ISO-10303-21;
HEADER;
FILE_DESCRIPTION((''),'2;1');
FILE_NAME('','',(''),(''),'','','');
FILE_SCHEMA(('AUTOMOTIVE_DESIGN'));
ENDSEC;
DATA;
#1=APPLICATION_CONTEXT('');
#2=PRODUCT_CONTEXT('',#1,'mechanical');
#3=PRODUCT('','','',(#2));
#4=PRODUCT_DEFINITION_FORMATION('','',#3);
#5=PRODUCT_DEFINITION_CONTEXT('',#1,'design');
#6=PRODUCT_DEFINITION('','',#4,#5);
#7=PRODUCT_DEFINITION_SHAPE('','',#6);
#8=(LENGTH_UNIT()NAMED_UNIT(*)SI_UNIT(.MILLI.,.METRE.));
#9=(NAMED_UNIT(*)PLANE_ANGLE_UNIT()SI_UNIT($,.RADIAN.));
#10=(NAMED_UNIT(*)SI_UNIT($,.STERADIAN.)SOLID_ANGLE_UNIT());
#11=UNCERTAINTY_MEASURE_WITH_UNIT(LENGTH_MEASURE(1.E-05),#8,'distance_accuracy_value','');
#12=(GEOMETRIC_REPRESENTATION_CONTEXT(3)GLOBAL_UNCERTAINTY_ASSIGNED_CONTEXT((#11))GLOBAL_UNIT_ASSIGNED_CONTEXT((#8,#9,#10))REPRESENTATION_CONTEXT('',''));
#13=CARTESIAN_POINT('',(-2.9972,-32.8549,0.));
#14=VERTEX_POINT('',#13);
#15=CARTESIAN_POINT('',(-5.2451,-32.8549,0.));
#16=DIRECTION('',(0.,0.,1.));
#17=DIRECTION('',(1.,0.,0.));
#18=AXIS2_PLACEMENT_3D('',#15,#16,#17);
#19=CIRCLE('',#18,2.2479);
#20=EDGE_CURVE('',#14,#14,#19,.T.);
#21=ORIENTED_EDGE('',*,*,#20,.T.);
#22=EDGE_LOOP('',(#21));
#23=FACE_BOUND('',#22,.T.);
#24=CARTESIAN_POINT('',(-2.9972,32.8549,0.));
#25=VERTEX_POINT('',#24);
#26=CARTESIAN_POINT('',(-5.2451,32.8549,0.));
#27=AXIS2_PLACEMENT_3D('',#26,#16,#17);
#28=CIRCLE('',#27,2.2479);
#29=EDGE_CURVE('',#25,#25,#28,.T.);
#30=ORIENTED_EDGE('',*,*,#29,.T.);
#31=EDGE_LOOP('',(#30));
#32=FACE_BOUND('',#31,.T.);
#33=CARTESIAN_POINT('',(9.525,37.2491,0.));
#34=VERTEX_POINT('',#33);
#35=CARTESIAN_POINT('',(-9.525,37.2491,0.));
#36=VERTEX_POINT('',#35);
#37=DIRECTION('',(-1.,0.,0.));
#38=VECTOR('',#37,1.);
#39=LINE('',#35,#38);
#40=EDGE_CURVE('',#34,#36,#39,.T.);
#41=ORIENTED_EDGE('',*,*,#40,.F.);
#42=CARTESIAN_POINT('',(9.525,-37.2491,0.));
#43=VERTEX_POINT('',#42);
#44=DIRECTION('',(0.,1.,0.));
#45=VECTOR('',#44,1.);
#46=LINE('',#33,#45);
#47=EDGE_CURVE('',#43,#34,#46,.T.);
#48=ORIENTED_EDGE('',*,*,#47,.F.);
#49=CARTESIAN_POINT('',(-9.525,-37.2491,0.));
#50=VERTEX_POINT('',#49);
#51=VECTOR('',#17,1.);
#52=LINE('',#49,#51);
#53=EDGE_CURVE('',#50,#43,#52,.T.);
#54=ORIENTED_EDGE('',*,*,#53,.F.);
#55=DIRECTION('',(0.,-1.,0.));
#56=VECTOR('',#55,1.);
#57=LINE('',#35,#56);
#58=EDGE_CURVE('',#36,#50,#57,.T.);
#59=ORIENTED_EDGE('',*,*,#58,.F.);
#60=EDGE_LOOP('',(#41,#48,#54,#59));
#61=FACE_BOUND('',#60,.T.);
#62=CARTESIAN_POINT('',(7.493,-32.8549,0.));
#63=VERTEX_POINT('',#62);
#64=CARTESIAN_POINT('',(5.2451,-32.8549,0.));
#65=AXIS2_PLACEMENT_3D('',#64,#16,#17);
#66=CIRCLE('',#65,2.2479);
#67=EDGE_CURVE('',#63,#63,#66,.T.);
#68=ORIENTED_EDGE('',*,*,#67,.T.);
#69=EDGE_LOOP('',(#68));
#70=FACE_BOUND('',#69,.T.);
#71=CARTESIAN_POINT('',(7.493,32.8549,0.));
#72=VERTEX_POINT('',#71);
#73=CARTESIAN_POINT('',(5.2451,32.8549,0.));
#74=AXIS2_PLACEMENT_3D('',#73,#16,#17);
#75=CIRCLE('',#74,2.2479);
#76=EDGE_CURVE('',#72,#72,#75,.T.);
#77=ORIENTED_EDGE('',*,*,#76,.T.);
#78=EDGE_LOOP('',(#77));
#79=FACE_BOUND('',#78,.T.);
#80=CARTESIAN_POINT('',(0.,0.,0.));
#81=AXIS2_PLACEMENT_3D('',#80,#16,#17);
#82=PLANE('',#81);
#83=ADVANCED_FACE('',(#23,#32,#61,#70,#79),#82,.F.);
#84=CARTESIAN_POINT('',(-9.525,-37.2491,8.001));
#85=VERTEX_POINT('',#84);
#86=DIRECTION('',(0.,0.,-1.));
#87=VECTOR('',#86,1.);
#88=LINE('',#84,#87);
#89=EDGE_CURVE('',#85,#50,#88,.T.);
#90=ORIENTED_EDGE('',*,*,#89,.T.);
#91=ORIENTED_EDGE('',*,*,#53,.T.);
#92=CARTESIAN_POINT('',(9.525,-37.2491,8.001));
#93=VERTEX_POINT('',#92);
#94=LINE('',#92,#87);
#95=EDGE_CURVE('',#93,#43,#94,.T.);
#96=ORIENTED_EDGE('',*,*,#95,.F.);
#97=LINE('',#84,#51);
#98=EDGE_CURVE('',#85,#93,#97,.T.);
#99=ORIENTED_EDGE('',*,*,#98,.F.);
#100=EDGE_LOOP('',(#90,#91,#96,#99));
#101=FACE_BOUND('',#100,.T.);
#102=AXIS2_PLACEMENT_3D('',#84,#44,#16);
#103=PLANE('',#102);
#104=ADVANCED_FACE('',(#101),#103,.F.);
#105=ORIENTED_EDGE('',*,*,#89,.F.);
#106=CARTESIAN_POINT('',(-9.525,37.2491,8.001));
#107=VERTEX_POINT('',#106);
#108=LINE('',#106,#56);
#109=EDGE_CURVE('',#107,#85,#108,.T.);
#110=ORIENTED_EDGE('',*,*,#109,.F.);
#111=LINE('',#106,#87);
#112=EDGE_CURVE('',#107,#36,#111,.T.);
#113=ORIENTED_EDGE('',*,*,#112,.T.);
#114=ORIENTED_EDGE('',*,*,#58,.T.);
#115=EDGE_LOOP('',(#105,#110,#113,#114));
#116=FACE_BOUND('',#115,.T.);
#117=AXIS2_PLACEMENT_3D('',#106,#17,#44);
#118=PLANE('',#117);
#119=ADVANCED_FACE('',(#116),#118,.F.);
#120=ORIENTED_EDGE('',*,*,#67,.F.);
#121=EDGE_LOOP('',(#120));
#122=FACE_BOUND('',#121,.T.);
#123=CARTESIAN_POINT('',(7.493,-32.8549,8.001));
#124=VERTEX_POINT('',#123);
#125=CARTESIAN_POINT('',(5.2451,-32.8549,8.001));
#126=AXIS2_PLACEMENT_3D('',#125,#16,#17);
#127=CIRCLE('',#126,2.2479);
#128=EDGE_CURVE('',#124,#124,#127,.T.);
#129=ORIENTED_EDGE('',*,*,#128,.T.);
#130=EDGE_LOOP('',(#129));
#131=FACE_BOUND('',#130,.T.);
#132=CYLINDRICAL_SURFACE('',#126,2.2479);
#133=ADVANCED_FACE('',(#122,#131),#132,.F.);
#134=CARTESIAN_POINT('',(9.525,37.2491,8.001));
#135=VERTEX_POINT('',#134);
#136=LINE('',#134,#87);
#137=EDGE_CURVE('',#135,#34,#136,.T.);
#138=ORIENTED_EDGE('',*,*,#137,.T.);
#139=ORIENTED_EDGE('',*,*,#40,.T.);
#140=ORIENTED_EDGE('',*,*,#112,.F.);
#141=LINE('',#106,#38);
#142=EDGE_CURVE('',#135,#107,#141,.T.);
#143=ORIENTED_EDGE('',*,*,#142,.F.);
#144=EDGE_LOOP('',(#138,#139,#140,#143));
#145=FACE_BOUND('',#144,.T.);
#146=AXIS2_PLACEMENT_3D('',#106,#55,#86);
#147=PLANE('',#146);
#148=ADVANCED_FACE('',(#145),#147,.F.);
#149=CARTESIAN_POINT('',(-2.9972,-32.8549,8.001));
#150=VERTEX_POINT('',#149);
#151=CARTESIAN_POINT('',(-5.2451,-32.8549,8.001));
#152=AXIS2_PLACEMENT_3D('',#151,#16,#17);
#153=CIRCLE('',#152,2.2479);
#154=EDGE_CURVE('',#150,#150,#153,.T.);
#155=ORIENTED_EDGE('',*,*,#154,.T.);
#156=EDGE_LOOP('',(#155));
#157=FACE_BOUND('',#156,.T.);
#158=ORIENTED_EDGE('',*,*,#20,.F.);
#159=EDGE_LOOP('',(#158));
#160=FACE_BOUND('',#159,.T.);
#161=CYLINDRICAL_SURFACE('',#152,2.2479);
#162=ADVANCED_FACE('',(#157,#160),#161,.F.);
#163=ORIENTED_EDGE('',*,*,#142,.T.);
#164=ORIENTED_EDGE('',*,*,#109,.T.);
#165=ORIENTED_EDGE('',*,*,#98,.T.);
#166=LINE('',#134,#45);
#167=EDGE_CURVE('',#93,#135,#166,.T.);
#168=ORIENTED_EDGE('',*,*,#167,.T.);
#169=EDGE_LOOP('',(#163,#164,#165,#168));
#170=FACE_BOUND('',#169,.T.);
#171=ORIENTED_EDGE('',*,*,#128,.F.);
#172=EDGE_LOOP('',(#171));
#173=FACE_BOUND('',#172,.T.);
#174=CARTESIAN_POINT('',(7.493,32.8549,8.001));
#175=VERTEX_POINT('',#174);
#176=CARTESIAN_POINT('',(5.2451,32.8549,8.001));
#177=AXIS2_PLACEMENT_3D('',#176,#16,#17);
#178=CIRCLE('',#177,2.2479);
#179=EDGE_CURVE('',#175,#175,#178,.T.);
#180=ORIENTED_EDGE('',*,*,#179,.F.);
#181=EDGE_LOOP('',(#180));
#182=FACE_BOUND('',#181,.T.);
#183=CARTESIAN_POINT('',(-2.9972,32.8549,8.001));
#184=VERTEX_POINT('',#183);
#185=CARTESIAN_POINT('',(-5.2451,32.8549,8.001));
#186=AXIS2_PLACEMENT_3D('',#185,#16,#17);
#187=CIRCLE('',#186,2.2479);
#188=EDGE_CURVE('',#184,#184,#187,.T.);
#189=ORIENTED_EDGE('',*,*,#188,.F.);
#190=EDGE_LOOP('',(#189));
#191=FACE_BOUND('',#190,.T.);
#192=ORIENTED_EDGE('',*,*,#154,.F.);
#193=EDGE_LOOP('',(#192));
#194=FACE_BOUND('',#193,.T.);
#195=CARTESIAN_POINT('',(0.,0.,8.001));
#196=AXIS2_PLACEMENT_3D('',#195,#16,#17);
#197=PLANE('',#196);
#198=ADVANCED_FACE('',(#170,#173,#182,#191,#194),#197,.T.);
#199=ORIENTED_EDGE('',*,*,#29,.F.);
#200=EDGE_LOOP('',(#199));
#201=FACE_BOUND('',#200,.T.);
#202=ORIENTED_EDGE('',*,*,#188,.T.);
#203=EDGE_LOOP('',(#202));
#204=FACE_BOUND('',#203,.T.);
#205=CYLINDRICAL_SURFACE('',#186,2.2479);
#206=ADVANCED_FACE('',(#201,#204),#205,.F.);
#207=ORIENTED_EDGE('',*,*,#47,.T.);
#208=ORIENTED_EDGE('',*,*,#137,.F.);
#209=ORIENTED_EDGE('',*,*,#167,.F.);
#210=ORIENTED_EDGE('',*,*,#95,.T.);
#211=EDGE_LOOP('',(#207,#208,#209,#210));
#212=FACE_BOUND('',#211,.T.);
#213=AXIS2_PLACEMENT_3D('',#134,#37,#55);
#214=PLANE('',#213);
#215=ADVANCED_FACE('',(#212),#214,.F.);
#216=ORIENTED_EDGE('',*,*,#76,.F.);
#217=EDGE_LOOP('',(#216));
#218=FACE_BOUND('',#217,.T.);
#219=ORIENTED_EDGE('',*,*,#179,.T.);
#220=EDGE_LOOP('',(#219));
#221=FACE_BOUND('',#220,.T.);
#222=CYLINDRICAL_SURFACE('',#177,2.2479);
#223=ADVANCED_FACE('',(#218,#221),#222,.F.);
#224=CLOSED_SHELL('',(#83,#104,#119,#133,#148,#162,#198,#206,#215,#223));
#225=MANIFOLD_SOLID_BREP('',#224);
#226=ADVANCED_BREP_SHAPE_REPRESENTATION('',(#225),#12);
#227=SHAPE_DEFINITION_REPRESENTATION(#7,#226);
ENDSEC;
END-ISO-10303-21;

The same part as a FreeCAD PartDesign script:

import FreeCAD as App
import Part
import Sketcher
from FreeCAD import Vector
Q = App.Units.Quantity

doc = App.newDocument("Part")
body = doc.addObject("PartDesign::Body", "Body")

sketch1 = doc.addObject("Sketcher::SketchObject", "Sketch")
body.addObject(sketch1)
sketch1.AttachmentSupport = (doc.XY_Plane, [""])
sketch1.MapMode = "FlatFace"
sketch1.addGeometry(Part.LineSegment(Vector(-10, 37, 0), Vector(-10, -37, 0)), False)
sketch1.addGeometry(Part.LineSegment(Vector(-10, -37, 0), Vector(10, -37, 0)), False)
sketch1.addGeometry(Part.LineSegment(Vector(10, -37, 0), Vector(10, 37, 0)), False)
sketch1.addGeometry(Part.LineSegment(Vector(10, 37, 0), Vector(-10, 37, 0)), False)
sketch1.addConstraint(Sketcher.Constraint("Coincident", 0, 2, 1, 1))
sketch1.addConstraint(Sketcher.Constraint("Coincident", 1, 2, 2, 1))
sketch1.addConstraint(Sketcher.Constraint("Coincident", 2, 2, 3, 1))
sketch1.addConstraint(Sketcher.Constraint("Coincident", 3, 2, 0, 1))
sketch1.addConstraint(Sketcher.Constraint("Vertical", 0))
sketch1.addConstraint(Sketcher.Constraint("Horizontal", 1))
sketch1.addConstraint(Sketcher.Constraint("Vertical", 2))
sketch1.addConstraint(Sketcher.Constraint("Horizontal", 3))
sketch1.addConstraint(Sketcher.Constraint("Symmetric", 0, 2, 2, 2, -1, 1))
sketch1.addConstraint(Sketcher.Constraint("DistanceX", 1, 1, 1, 2, Q("0.75 in")))
sketch1.addConstraint(Sketcher.Constraint("DistanceY", 0, 2, 0, 1, Q("2.933 in")))
pad1 = doc.addObject("PartDesign::Pad", "Pad")
body.addObject(pad1)
pad1.Profile = sketch1
pad1.Length = Q("0.315 in")

sketch2 = doc.addObject("Sketcher::SketchObject", "Sketch001")
body.addObject(sketch2)
sketch2.AttachmentSupport = (doc.XY_Plane, [""])
sketch2.MapMode = "FlatFace"
sketch2.AttachmentOffset = App.Placement(Vector(0, 0, 0.315 * 25.4), App.Rotation())
sketch2.addGeometry(Part.Circle(Vector(-5.2, 32.9, 0), Vector(0, 0, 1), 2.2), False)
sketch2.addGeometry(Part.Circle(Vector(5.2, -32.9, 0), Vector(0, 0, 1), 2.2), False)
sketch2.addGeometry(Part.Circle(Vector(-5.2, -32.9, 0), Vector(0, 0, 1), 2.2), False)
sketch2.addGeometry(Part.Circle(Vector(5.2, 32.9, 0), Vector(0, 0, 1), 2.2), False)
sketch2.addConstraint(Sketcher.Constraint("Equal", 0, 1))
sketch2.addConstraint(Sketcher.Constraint("Equal", 1, 2))
sketch2.addConstraint(Sketcher.Constraint("Equal", 2, 3))
sketch2.addConstraint(Sketcher.Constraint("Symmetric", 0, 3, 1, 3, -1, 1))
sketch2.addConstraint(Sketcher.Constraint("Symmetric", 2, 3, 3, 3, -1, 1))
sketch2.addConstraint(Sketcher.Constraint("Symmetric", 1, 3, 2, 3, -2))
sketch2.addConstraint(Sketcher.Constraint("Diameter", 0, Q("0.177 in")))
sketch2.addConstraint(Sketcher.Constraint("DistanceX", 0, 3, 1, 3, Q("0.413 in")))
sketch2.addConstraint(Sketcher.Constraint("DistanceY", 1, 3, 0, 3, Q("2.587 in")))
doc.recompute()
hole = doc.addObject("PartDesign::Hole", "Hole")
body.addObject(hole)
hole.Profile = sketch2
hole.ThreadType = "None"
hole.Diameter = Q("0.177 in")
hole.DepthType = "ThroughAll"

doc.recompute()
